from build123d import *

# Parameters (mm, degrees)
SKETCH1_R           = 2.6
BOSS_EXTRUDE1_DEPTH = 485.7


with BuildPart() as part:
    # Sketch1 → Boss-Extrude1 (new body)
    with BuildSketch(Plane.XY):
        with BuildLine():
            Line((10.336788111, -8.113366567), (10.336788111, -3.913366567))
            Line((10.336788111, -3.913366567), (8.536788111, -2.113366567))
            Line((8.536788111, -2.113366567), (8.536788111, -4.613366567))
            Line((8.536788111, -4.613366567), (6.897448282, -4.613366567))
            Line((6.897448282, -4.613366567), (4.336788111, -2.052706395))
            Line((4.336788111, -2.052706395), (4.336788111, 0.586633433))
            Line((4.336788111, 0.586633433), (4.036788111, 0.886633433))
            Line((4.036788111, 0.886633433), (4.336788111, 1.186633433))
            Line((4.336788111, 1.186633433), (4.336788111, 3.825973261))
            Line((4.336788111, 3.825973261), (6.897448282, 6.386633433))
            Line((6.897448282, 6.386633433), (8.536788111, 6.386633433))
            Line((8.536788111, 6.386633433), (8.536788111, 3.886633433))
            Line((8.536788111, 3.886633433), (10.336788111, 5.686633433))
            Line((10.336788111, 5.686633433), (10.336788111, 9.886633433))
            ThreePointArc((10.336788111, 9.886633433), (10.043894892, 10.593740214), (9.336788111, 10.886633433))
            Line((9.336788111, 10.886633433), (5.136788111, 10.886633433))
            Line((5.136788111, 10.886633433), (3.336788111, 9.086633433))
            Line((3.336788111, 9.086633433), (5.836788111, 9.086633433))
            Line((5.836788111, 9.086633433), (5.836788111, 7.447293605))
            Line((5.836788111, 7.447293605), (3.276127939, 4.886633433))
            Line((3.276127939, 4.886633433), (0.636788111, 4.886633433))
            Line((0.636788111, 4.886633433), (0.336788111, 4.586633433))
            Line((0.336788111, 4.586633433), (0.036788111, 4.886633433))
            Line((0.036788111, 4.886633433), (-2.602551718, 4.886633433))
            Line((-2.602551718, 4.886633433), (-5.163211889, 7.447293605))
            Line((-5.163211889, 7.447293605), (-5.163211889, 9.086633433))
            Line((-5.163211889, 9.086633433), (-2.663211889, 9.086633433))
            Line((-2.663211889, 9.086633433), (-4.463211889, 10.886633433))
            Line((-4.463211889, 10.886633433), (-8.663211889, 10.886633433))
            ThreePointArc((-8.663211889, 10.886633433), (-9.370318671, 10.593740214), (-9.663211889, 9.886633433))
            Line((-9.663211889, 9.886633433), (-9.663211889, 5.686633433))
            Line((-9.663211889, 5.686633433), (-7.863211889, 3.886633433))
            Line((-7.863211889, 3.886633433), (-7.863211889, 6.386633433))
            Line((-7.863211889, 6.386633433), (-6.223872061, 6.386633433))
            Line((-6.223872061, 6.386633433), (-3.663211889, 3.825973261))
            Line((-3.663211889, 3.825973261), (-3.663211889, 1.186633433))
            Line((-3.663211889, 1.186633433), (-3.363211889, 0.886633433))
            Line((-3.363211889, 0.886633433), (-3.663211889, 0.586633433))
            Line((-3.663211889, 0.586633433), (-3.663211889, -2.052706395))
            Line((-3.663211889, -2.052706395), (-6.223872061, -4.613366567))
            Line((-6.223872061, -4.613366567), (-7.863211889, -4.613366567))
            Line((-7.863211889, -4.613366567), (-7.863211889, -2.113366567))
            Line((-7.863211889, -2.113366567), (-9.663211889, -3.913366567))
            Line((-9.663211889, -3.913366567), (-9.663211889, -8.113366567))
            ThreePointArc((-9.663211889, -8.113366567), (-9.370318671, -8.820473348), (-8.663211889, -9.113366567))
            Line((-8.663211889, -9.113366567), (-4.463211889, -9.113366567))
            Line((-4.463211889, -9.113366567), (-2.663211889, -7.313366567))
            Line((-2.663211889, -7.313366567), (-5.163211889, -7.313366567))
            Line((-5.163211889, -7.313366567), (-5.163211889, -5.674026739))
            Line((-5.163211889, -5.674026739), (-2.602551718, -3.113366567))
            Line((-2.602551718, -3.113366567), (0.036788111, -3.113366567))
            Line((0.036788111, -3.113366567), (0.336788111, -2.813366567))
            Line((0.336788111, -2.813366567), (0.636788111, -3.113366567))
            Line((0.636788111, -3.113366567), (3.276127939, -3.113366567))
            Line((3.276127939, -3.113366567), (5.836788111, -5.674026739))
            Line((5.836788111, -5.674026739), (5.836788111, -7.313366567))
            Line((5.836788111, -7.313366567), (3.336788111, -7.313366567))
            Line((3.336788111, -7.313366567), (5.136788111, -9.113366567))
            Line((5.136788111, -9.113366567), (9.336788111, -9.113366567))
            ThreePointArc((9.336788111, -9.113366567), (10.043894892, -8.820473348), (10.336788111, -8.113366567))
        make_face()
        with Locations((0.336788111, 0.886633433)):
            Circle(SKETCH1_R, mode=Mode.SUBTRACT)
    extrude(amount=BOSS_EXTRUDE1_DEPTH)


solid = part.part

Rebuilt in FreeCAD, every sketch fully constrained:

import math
import FreeCAD as App
import Part
import Sketcher

V = App.Vector

doc = App.newDocument("Part")
body = doc.addObject("PartDesign::Body", "Body")

sketch1 = body.newObject("Sketcher::SketchObject", "Sketch")
sketch1.AttachmentSupport = (doc.getObject("XY_Plane"), [""])
sketch1.MapMode = "FlatFace"
sketch1.addGeometry([
    Part.LineSegment(V(10.34, -8.11, 0), V(10.34, -3.91, 0)),
    Part.LineSegment(V(10.34, -3.91, 0), V(8.54, -2.11, 0)),
    Part.LineSegment(V(8.54, -2.11, 0), V(8.54, -4.61, 0)),
    Part.LineSegment(V(8.54, -4.61, 0), V(6.9, -4.61, 0)),
    Part.LineSegment(V(6.9, -4.61, 0), V(4.34, -2.05, 0)),
    Part.LineSegment(V(4.34, -2.05, 0), V(4.34, 0.59, 0)),
    Part.LineSegment(V(4.34, 0.59, 0), V(4.04, 0.89, 0)),
    Part.LineSegment(V(4.04, 0.89, 0), V(4.34, 1.19, 0)),
    Part.LineSegment(V(4.34, 1.19, 0), V(4.34, 3.83, 0)),
    Part.LineSegment(V(4.34, 3.83, 0), V(6.9, 6.39, 0)),
    Part.LineSegment(V(6.9, 6.39, 0), V(8.54, 6.39, 0)),
    Part.LineSegment(V(8.54, 6.39, 0), V(8.54, 3.89, 0)),
    Part.LineSegment(V(8.54, 3.89, 0), V(10.34, 5.69, 0)),
    Part.LineSegment(V(10.34, 5.69, 0), V(10.34, 9.89, 0)),
    Part.ArcOfCircle(Part.Circle(V(9.34, 9.89, 0), V(0, 0, 1), 1), math.radians(0), math.radians(90)),
    Part.LineSegment(V(9.34, 10.89, 0), V(5.14, 10.89, 0)),
    Part.LineSegment(V(5.14, 10.89, 0), V(3.34, 9.09, 0)),
    Part.LineSegment(V(3.34, 9.09, 0), V(5.84, 9.09, 0)),
    Part.LineSegment(V(5.84, 9.09, 0), V(5.84, 7.45, 0)),
    Part.LineSegment(V(5.84, 7.45, 0), V(3.28, 4.89, 0)),
    Part.LineSegment(V(3.28, 4.89, 0), V(0.64, 4.89, 0)),
    Part.LineSegment(V(0.64, 4.89, 0), V(0.34, 4.59, 0)),
    Part.LineSegment(V(0.34, 4.59, 0), V(0.04, 4.89, 0)),
    Part.LineSegment(V(0.04, 4.89, 0), V(-2.6, 4.89, 0)),
    Part.LineSegment(V(-2.6, 4.89, 0), V(-5.16, 7.45, 0)),
    Part.LineSegment(V(-5.16, 7.45, 0), V(-5.16, 9.09, 0)),
    Part.LineSegment(V(-5.16, 9.09, 0), V(-2.66, 9.09, 0)),
    Part.LineSegment(V(-2.66, 9.09, 0), V(-4.46, 10.89, 0)),
    Part.LineSegment(V(-4.46, 10.89, 0), V(-8.66, 10.89, 0)),
    Part.ArcOfCircle(Part.Circle(V(-8.66, 9.89, 0), V(0, 0, 1), 1), math.radians(90), math.radians(180)),
    Part.LineSegment(V(-9.66, 9.89, 0), V(-9.66, 5.69, 0)),
    Part.LineSegment(V(-9.66, 5.69, 0), V(-7.86, 3.89, 0)),
    Part.LineSegment(V(-7.86, 3.89, 0), V(-7.86, 6.39, 0)),
    Part.LineSegment(V(-7.86, 6.39, 0), V(-6.22, 6.39, 0)),
    Part.LineSegment(V(-6.22, 6.39, 0), V(-3.66, 3.83, 0)),
    Part.LineSegment(V(-3.66, 3.83, 0), V(-3.66, 1.19, 0)),
    Part.LineSegment(V(-3.66, 1.19, 0), V(-3.36, 0.89, 0)),
    Part.LineSegment(V(-3.36, 0.89, 0), V(-3.66, 0.59, 0)),
    Part.LineSegment(V(-3.66, 0.59, 0), V(-3.66, -2.05, 0)),
    Part.LineSegment(V(-3.66, -2.05, 0), V(-6.22, -4.61, 0)),
    Part.LineSegment(V(-6.22, -4.61, 0), V(-7.86, -4.61, 0)),
    Part.LineSegment(V(-7.86, -4.61, 0), V(-7.86, -2.11, 0)),
    Part.LineSegment(V(-7.86, -2.11, 0), V(-9.66, -3.91, 0)),
    Part.LineSegment(V(-9.66, -3.91, 0), V(-9.66, -8.11, 0)),
    Part.ArcOfCircle(Part.Circle(V(-8.66, -8.11, 0), V(0, 0, 1), 1), math.radians(180), math.radians(270)),
    Part.LineSegment(V(-8.66, -9.11, 0), V(-4.46, -9.11, 0)),
    Part.LineSegment(V(-4.46, -9.11, 0), V(-2.66, -7.31, 0)),
    Part.LineSegment(V(-2.66, -7.31, 0), V(-5.16, -7.31, 0)),
    Part.LineSegment(V(-5.16, -7.31, 0), V(-5.16, -5.67, 0)),
    Part.LineSegment(V(-5.16, -5.67, 0), V(-2.6, -3.11, 0)),
    Part.LineSegment(V(-2.6, -3.11, 0), V(0.04, -3.11, 0)),
    Part.LineSegment(V(0.04, -3.11, 0), V(0.34, -2.81, 0)),
    Part.LineSegment(V(0.34, -2.81, 0), V(0.64, -3.11, 0)),
    Part.LineSegment(V(0.64, -3.11, 0), V(3.28, -3.11, 0)),
    Part.LineSegment(V(3.28, -3.11, 0), V(5.84, -5.67, 0)),
    Part.LineSegment(V(5.84, -5.67, 0), V(5.84, -7.31, 0)),
    Part.LineSegment(V(5.84, -7.31, 0), V(3.34, -7.31, 0)),
    Part.LineSegment(V(3.34, -7.31, 0), V(5.14, -9.11, 0)),
    Part.LineSegment(V(5.14, -9.11, 0), V(9.34, -9.11, 0)),
    Part.ArcOfCircle(Part.Circle(V(9.34, -8.11, 0), V(0, 0, 1), 1), math.radians(-90), math.radians(0)),
    Part.Circle(V(0.34, 0.89, 0), V(0, 0, 1), 2.6),
], False)
sketch1.addConstraint([
    Sketcher.Constraint("Coincident", 0, 2, 1, 1),
    Sketcher.Constraint("Coincident", 1, 2, 2, 1),
    Sketcher.Constraint("Coincident", 2, 2, 3, 1),
    Sketcher.Constraint("Coincident", 3, 2, 4, 1),
    Sketcher.Constraint("Coincident", 4, 2, 5, 1),
    Sketcher.Constraint("Coincident", 5, 2, 6, 1),
    Sketcher.Constraint("Coincident", 6, 2, 7, 1),
    Sketcher.Constraint("Coincident", 7, 2, 8, 1),
    Sketcher.Constraint("Coincident", 8, 2, 9, 1),
    Sketcher.Constraint("Coincident", 9, 2, 10, 1),
    Sketcher.Constraint("Coincident", 10, 2, 11, 1),
    Sketcher.Constraint("Coincident", 11, 2, 12, 1),
    Sketcher.Constraint("Coincident", 12, 2, 13, 1),
    Sketcher.Constraint("Tangent", 13, 2, 14, 1),
    Sketcher.Constraint("Tangent", 14, 2, 15, 1),
    Sketcher.Constraint("Coincident", 15, 2, 16, 1),
    Sketcher.Constraint("Coincident", 16, 2, 17, 1),
    Sketcher.Constraint("Coincident", 17, 2, 18, 1),
    Sketcher.Constraint("Coincident", 18, 2, 19, 1),
    Sketcher.Constraint("Coincident", 19, 2, 20, 1),
    Sketcher.Constraint("Coincident", 20, 2, 21, 1),
    Sketcher.Constraint("Coincident", 21, 2, 22, 1),
    Sketcher.Constraint("Coincident", 22, 2, 23, 1),
    Sketcher.Constraint("Coincident", 23, 2, 24, 1),
    Sketcher.Constraint("Coincident", 24, 2, 25, 1),
    Sketcher.Constraint("Coincident", 25, 2, 26, 1),
    Sketcher.Constraint("Coincident", 26, 2, 27, 1),
    Sketcher.Constraint("Coincident", 27, 2, 28, 1),
    Sketcher.Constraint("Tangent", 28, 2, 29, 1),
    Sketcher.Constraint("Tangent", 29, 2, 30, 1),
    Sketcher.Constraint("Coincident", 30, 2, 31, 1),
    Sketcher.Constraint("Coincident", 31, 2, 32, 1),
    Sketcher.Constraint("Coincident", 32, 2, 33, 1),
    Sketcher.Constraint("Coincident", 33, 2, 34, 1),
    Sketcher.Constraint("Coincident", 34, 2, 35, 1),
    Sketcher.Constraint("Coincident", 35, 2, 36, 1),
    Sketcher.Constraint("Coincident", 36, 2, 37, 1),
    Sketcher.Constraint("Coincident", 37, 2, 38, 1),
    Sketcher.Constraint("Coincident", 38, 2, 39, 1),
    Sketcher.Constraint("Coincident", 39, 2, 40, 1),
    Sketcher.Constraint("Coincident", 40, 2, 41, 1),
    Sketcher.Constraint("Coincident", 41, 2, 42, 1),
    Sketcher.Constraint("Coincident", 42, 2, 43, 1),
    Sketcher.Constraint("Tangent", 43, 2, 44, 1),
    Sketcher.Constraint("Tangent", 44, 2, 45, 1),
    Sketcher.Constraint("Coincident", 45, 2, 46, 1),
    Sketcher.Constraint("Coincident", 46, 2, 47, 1),
    Sketcher.Constraint("Coincident", 47, 2, 48, 1),
    Sketcher.Constraint("Coincident", 48, 2, 49, 1),
    Sketcher.Constraint("Coincident", 49, 2, 50, 1),
    Sketcher.Constraint("Coincident", 50, 2, 51, 1),
    Sketcher.Constraint("Coincident", 51, 2, 52, 1),
    Sketcher.Constraint("Coincident", 52, 2, 53, 1),
    Sketcher.Constraint("Coincident", 53, 2, 54, 1),
    Sketcher.Constraint("Coincident", 54, 2, 55, 1),
    Sketcher.Constraint("Coincident", 55, 2, 56, 1),
    Sketcher.Constraint("Coincident", 56, 2, 57, 1),
    Sketcher.Constraint("Coincident", 57, 2, 58, 1),
    Sketcher.Constraint("Tangent", 58, 2, 59, 1),
    Sketcher.Constraint("Tangent", 59, 2, 0, 1),
    Sketcher.Constraint("Vertical", 0),
    Sketcher.Constraint("Vertical", 2),
    Sketcher.Constraint("Horizontal", 3),
    Sketcher.Constraint("Vertical", 5),
    Sketcher.Constraint("Vertical", 8),
    Sketcher.Constraint("Horizontal", 10),
    Sketcher.Constraint("Vertical", 11),
    Sketcher.Constraint("Vertical", 13),
    Sketcher.Constraint("Horizontal", 15),
    Sketcher.Constraint("Horizontal", 17),
    Sketcher.Constraint("Vertical", 18),
    Sketcher.Constraint("Horizontal", 20),
    Sketcher.Constraint("Horizontal", 23),
    Sketcher.Constraint("Vertical", 25),
    Sketcher.Constraint("Horizontal", 26),
    Sketcher.Constraint("Horizontal", 28),
    Sketcher.Constraint("Vertical", 30),
    Sketcher.Constraint("Vertical", 32),
    Sketcher.Constraint("Horizontal", 33),
    Sketcher.Constraint("Vertical", 35),
    Sketcher.Constraint("Vertical", 38),
    Sketcher.Constraint("Horizontal", 40),
    Sketcher.Constraint("Vertical", 41),
    Sketcher.Constraint("Vertical", 43),
    Sketcher.Constraint("Horizontal", 45),
    Sketcher.Constraint("Horizontal", 47),
    Sketcher.Constraint("Vertical", 48),
    Sketcher.Constraint("Horizontal", 50),
    Sketcher.Constraint("Horizontal", 53),
    Sketcher.Constraint("Vertical", 55),
    Sketcher.Constraint("Horizontal", 56),
    Sketcher.Constraint("Horizontal", 58),
    Sketcher.Constraint("Equal", 14, 29),
    Sketcher.Constraint("Equal", 29, 44),
    Sketcher.Constraint("Equal", 44, 59),
    Sketcher.Constraint("Parallel", 1, 4),
    Sketcher.Constraint("Parallel", 4, 6),
    Sketcher.Constraint("Perpendicular", 6, 7),
    Sketcher.Constraint("Parallel", 7, 9),
    Sketcher.Constraint("Parallel", 9, 12),
    Sketcher.Constraint("Parallel", 12, 16),
    Sketcher.Constraint("Parallel", 16, 19),
    Sketcher.Constraint("Parallel", 19, 21),
    Sketcher.Constraint("Perpendicular", 21, 22),
    Sketcher.Constraint("Parallel", 22, 24),
    Sketcher.Constraint("Parallel", 24, 27),
    Sketcher.Constraint("Parallel", 27, 31),
    Sketcher.Constraint("Parallel", 31, 34),
    Sketcher.Constraint("Parallel", 34, 36),
    Sketcher.Constraint("Perpendicular", 36, 37),
    Sketcher.Constraint("Parallel", 37, 39),
    Sketcher.Constraint("Parallel", 39, 42),
    Sketcher.Constraint("Parallel", 42, 46),
    Sketcher.Constraint("Parallel", 46, 49),
    Sketcher.Constraint("Parallel", 49, 51),
    Sketcher.Constraint("Perpendicular", 51, 52),
    Sketcher.Constraint("Parallel", 52, 54),
    Sketcher.Constraint("Parallel", 54, 57),
    Sketcher.Constraint("Horizontal", 14, 3, 29, 3),
    Sketcher.Constraint("Horizontal", 44, 3, 59, 3),
    Sketcher.Constraint("Horizontal", 60, 3, 6, 2),
    Sketcher.Constraint("Horizontal", 20, 2, 22, 2),
    Sketcher.Constraint("Horizontal", 18, 2, 24, 2),
    Sketcher.Constraint("Horizontal", 17, 2, 25, 2),
    Sketcher.Constraint("Horizontal", 12, 2, 30, 2),
    Sketcher.Constraint("Horizontal", 11, 2, 31, 2),
    Sketcher.Constraint("Horizontal", 10, 2, 32, 2),
    Sketcher.Constraint("Horizontal", 8, 2, 34, 2),
    Sketcher.Constraint("Horizontal", 7, 2, 35, 2),
    Sketcher.Constraint("Horizontal", 6, 2, 36, 2),
    Sketcher.Constraint("Horizontal", 5, 2, 37, 2),
    Sketcher.Constraint("Horizontal", 4, 2, 38, 2),
    Sketcher.Constraint("Horizontal", 3, 2, 39, 2),
    Sketcher.Constraint("Horizontal", 1, 2, 41, 2),
    Sketcher.Constraint("Horizontal", 0, 2, 42, 2),
    Sketcher.Constraint("Horizontal", 50, 2, 52, 2),
    Sketcher.Constraint("Horizontal", 48, 2, 54, 2),
    Sketcher.Constraint("Horizontal", 47, 2, 55, 2),
    Sketcher.Constraint("Vertical", 29, 3, 44, 3),
    Sketcher.Constraint("Vertical", 14, 3, 59, 3),
    Sketcher.Constraint("Vertical", 5, 2, 7, 2),
    Sketcher.Constraint("Vertical", 3, 2, 9, 2),
    Sketcher.Constraint("Vertical", 2, 2, 10, 2),
    Sketcher.Constraint("Vertical", 60, 3, 21, 2),
    Sketcher.Constraint("Vertical", 35, 2, 37, 2),
    Sketcher.Constraint("Vertical", 27, 2, 45, 2),
    Sketcher.Constraint("Vertical", 26, 2, 46, 2),
    Sketcher.Constraint("Vertical", 25, 2, 47, 2),
    Sketcher.Constraint("Vertical", 23, 2, 49, 2),
    Sketcher.Constraint("Vertical", 22, 2, 50, 2),
    Sketcher.Constraint("Vertical", 21, 2, 51, 2),
    Sketcher.Constraint("Vertical", 19, 2, 53, 2),
    Sketcher.Constraint("Vertical", 16, 2, 56, 2),
    Sketcher.Constraint("Equal", 20, 23),
    Sketcher.Constraint("Equal", 17, 26),
    Sketcher.Constraint("Equal", 15, 28),
    Sketcher.Constraint("Equal", 10, 33),
    Sketcher.Constraint("Equal", 58, 0),
    Sketcher.Constraint("Equal", 56, 2),
    Sketcher.Constraint("Equal", 53, 5),
    Sketcher.Constraint("Equal", 5, 8),
    Sketcher.Constraint("Equal", 2, 11),
    Sketcher.Constraint("Equal", 0, 13),
    Sketcher.Constraint("Equal", 40, 18),
    Sketcher.Constraint("Equal", 25, 48),
    Sketcher.Constraint("Equal", 12, 16),
    Sketcher.Constraint("Equal", 9, 19),
    Sketcher.Constraint("Equal", 7, 21),
    Sketcher.Constraint("Radius", 14, 1.0),
    Sketcher.Constraint("Diameter", 60, 5.2),
    Sketcher.Constraint("DistanceX", 15, 2, 15, 1, 4.2),
    Sketcher.Constraint("DistanceX", 17, 1, 17, 2, 2.5),
    Sketcher.Constraint("DistanceX", 3, 2, 3, 1, 1.63934),
    Sketcher.Constraint("DistanceX", 20, 2, 20, 1, 2.63934),
    Sketcher.Constraint("Distance", 4, 3.62132),
    Sketcher.Constraint("DistanceX", -1, 1, 14, 3, 9.336788),
    Sketcher.Constraint("DistanceX", 29, 3, -1, 1, 8.663212),
    Sketcher.Constraint("DistanceX", -1, 1, 1, 2, 8.536788),
    Sketcher.Constraint("DistanceY", -1, 1, 14, 3, 9.886633),
])
pad1 = body.newObject("PartDesign::Pad", "Pad")
pad1.Profile = sketch1
pad1.Length = 485.7

doc.recompute()
